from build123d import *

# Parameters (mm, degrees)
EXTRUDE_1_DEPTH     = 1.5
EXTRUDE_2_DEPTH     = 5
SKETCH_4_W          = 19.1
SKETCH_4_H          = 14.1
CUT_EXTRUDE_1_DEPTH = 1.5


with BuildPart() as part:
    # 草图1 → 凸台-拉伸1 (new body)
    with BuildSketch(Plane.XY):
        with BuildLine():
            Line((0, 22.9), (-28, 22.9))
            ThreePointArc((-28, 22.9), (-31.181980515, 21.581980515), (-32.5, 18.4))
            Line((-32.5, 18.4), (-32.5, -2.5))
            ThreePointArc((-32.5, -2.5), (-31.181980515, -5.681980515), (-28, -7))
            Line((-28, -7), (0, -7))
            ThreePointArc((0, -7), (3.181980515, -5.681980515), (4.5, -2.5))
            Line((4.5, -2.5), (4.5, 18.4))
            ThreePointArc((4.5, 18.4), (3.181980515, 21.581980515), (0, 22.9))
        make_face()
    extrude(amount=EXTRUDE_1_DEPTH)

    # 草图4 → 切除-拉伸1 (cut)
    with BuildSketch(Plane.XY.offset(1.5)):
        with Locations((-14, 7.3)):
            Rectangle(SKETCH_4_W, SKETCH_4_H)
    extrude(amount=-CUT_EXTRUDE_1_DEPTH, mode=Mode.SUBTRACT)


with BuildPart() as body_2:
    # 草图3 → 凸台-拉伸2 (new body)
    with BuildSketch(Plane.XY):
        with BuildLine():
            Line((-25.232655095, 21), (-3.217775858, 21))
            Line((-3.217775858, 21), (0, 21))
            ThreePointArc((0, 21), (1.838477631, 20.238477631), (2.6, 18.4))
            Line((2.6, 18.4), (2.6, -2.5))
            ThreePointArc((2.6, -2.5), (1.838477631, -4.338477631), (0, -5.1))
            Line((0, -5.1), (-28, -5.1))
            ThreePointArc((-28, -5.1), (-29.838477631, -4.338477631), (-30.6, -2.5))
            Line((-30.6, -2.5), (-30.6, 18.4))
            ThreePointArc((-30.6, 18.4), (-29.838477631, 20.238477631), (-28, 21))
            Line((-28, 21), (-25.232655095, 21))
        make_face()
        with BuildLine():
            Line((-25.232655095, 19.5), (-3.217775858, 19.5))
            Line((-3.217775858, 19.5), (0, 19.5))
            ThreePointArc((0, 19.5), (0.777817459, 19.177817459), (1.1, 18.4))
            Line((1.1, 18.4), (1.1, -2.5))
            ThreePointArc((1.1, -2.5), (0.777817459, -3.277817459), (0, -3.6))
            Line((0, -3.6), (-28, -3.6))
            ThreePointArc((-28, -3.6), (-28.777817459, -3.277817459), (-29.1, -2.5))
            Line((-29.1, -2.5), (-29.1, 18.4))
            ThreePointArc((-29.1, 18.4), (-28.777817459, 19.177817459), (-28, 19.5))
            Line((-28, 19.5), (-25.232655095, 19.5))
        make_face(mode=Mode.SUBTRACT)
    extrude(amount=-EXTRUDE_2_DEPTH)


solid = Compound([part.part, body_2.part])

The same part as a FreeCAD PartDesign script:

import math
import FreeCAD as App
import Part
import Sketcher

V = App.Vector

doc = App.newDocument("Part")
body = doc.addObject("PartDesign::Body", "Body")

# Sketch on XY plane
sketch1 = body.newObject("Sketcher::SketchObject", "Sketch")
sketch1.AttachmentSupport = (doc.getObject("XY_Plane"), [""])
sketch1.MapMode = "FlatFace"
sketch1.addGeometry(Part.LineSegment(V(0, 22.9, 0), V(-28, 22.9, 0)), False)
sketch1.addGeometry(Part.ArcOfCircle(Part.Circle(V(-28, 18.4, 0), V(0, 0, 1), 4.5), math.radians(90), math.radians(180)), False)
sketch1.addGeometry(Part.LineSegment(V(-32.5, 18.4, 0), V(-32.5, -2.5, 0)), False)
sketch1.addGeometry(Part.ArcOfCircle(Part.Circle(V(-28, -2.5, 0), V(0, 0, 1), 4.5), math.radians(-180), math.radians(-90)), False)
sketch1.addGeometry(Part.LineSegment(V(-28, -7, 0), V(0, -7, 0)), False)
sketch1.addGeometry(Part.ArcOfCircle(Part.Circle(V(0, -2.5, 0), V(0, 0, 1), 4.5), math.radians(-90), math.radians(0)), False)
sketch1.addGeometry(Part.LineSegment(V(4.5, -2.5, 0), V(4.5, 18.4, 0)), False)
sketch1.addGeometry(Part.ArcOfCircle(Part.Circle(V(0, 18.4, 0), V(0, 0, 1), 4.5), math.radians(0), math.radians(90)), False)
sketch1.addConstraint(Sketcher.Constraint("Tangent", 0, 2, 1, 1))
sketch1.addConstraint(Sketcher.Constraint("Tangent", 1, 2, 2, 1))
sketch1.addConstraint(Sketcher.Constraint("Tangent", 2, 2, 3, 1))
sketch1.addConstraint(Sketcher.Constraint("Tangent", 3, 2, 4, 1))
sketch1.addConstraint(Sketcher.Constraint("Tangent", 4, 2, 5, 1))
sketch1.addConstraint(Sketcher.Constraint("Tangent", 5, 2, 6, 1))
sketch1.addConstraint(Sketcher.Constraint("Tangent", 6, 2, 7, 1))
sketch1.addConstraint(Sketcher.Constraint("Tangent", 7, 2, 0, 1))
sketch1.addConstraint(Sketcher.Constraint("Horizontal", 0))
sketch1.addConstraint(Sketcher.Constraint("Vertical", 2))
sketch1.addConstraint(Sketcher.Constraint("Horizontal", 4))
sketch1.addConstraint(Sketcher.Constraint("Vertical", 6))
sketch1.addConstraint(Sketcher.Constraint("Equal", 1, 3))
sketch1.addConstraint(Sketcher.Constraint("Equal", 3, 5))
sketch1.addConstraint(Sketcher.Constraint("Equal", 5, 7))
sketch1.addConstraint(Sketcher.Constraint("PointOnObject", 5, 3, -2))
sketch1.addConstraint(Sketcher.Constraint("Radius", 1, 4.5))
sketch1.addConstraint(Sketcher.Constraint("DistanceX", 0, 2, 0, 1, 28.0))
sketch1.addConstraint(Sketcher.Constraint("DistanceY", 2, 2, 2, 1, 20.9))
sketch1.addConstraint(Sketcher.Constraint("DistanceY", 3, 2, -1, 1, 7.0))
pad1 = body.newObject("PartDesign::Pad", "Pad")
pad1.Profile = sketch1
pad1.Length = 1.5

# Sketch on XY plane
sketch2 = body.newObject("Sketcher::SketchObject", "Sketch001")
sketch2.AttachmentSupport = (doc.getObject("XY_Plane"), [""])
sketch2.MapMode = "FlatFace"
sketch2.AttachmentOffset = App.Placement(V(0, 0, 1.5), App.Rotation())
sketch2.addGeometry(Part.LineSegment(V(-24, 14, 0), V(-24, 0, 0)), False)
sketch2.addGeometry(Part.LineSegment(V(-24, 0, 0), V(-4, 0, 0)), False)
sketch2.addGeometry(Part.LineSegment(V(-4, 0, 0), V(-4, 14, 0)), False)
sketch2.addGeometry(Part.LineSegment(V(-4, 14, 0), V(-24, 14, 0)), False)
sketch2.addConstraint(Sketcher.Constraint("Coincident", 0, 2, 1, 1))
sketch2.addConstraint(Sketcher.Constraint("Coincident", 1, 2, 2, 1))
sketch2.addConstraint(Sketcher.Constraint("Coincident", 2, 2, 3, 1))
sketch2.addConstraint(Sketcher.Constraint("Coincident", 3, 2, 0, 1))
sketch2.addConstraint(Sketcher.Constraint("Vertical", 0))
sketch2.addConstraint(Sketcher.Constraint("Horizontal", 1))
sketch2.addConstraint(Sketcher.Constraint("Vertical", 2))
sketch2.addConstraint(Sketcher.Constraint("Horizontal", 3))
sketch2.addConstraint(Sketcher.Constraint("DistanceX", 1, 1, 1, 2, 19.1))
sketch2.addConstraint(Sketcher.Constraint("DistanceY", 0, 2, 0, 1, 14.1))
sketch2.addConstraint(Sketcher.Constraint("DistanceX", 0, 2, -1, 1, 23.55))
sketch2.addConstraint(Sketcher.Constraint("DistanceY", -1, 1, 0, 2, 0.25))
pocket1 = body.newObject("PartDesign::Pocket", "Pocket")
pocket1.Profile = sketch2
pocket1.Length = 1.5
body2 = doc.addObject("PartDesign::Body", "Body001")

# Sketch on XY plane
sketch3 = body2.newObject("Sketcher::SketchObject", "Sketch002")
sketch3.AttachmentSupport = (doc.getObject("XY_Plane001"), [""])
sketch3.MapMode = "FlatFace"
sketch3.addGeometry(Part.ArcOfCircle(Part.Circle(V(0, 18.4, 0), V(0, 0, 1), 2.6), math.radians(0), math.radians(90)), False)
sketch3.addGeometry(Part.LineSegment(V(0, 21, 0), V(-28, 21, 0)), False)
sketch3.addGeometry(Part.ArcOfCircle(Part.Circle(V(-28, 18.4, 0), V(0, 0, 1), 2.6), math.radians(90), math.radians(180)), False)
sketch3.addGeometry(Part.LineSegment(V(-30.6, 18.4, 0), V(-30.6, -2.5, 0)), False)
sketch3.addGeometry(Part.ArcOfCircle(Part.Circle(V(-28, -2.5, 0), V(0, 0, 1), 2.6), math.radians(180), math.radians(270)), False)
sketch3.addGeometry(Part.LineSegment(V(-28, -5.1, 0), V(0, -5.1, 0)), False)
sketch3.addGeometry(Part.ArcOfCircle(Part.Circle(V(0, -2.5, 0), V(0, 0, 1), 2.6), math.radians(-90), math.radians(0)), False)
sketch3.addGeometry(Part.LineSegment(V(2.6, -2.5, 0), V(2.6, 18.4, 0)), False)
sketch3.addGeometry(Part.ArcOfCircle(Part.Circle(V(0, 18.4, 0), V(0, 0, 1), 1.1), math.radians(0), math.radians(90)), False)
sketch3.addGeometry(Part.LineSegment(V(1.1, 18.4, 0), V(1.1, -2.5, 0)), False)
sketch3.addGeometry(Part.ArcOfCircle(Part.Circle(V(0, -2.5, 0), V(0, 0, 1), 1.1), math.radians(-90), math.radians(0)), False)
sketch3.addGeometry(Part.LineSegment(V(0, -3.6, 0), V(-28, -3.6, 0)), False)
sketch3.addGeometry(Part.ArcOfCircle(Part.Circle(V(-28, -2.5, 0), V(0, 0, 1), 1.1), math.radians(-180), math.radians(-90)), False)
sketch3.addGeometry(Part.LineSegment(V(-29.1, -2.5, 0), V(-29.1, 18.4, 0)), False)
sketch3.addGeometry(Part.ArcOfCircle(Part.Circle(V(-28, 18.4, 0), V(0, 0, 1), 1.1), math.radians(90), math.radians(180)), False)
sketch3.addGeometry(Part.LineSegment(V(-28, 19.5, 0), V(0, 19.5, 0)), False)
sketch3.addConstraint(Sketcher.Constraint("Tangent", 0, 2, 1, 1))
sketch3.addConstraint(Sketcher.Constraint("Tangent", 1, 2, 2, 1))
sketch3.addConstraint(Sketcher.Constraint("Tangent", 2, 2, 3, 1))
sketch3.addConstraint(Sketcher.Constraint("Tangent", 3, 2, 4, 1))
sketch3.addConstraint(Sketcher.Constraint("Tangent", 4, 2, 5, 1))
sketch3.addConstraint(Sketcher.Constraint("Tangent", 5, 2, 6, 1))
sketch3.addConstraint(Sketcher.Constraint("Tangent", 6, 2, 7, 1))
sketch3.addConstraint(Sketcher.Constraint("Tangent", 7, 2, 0, 1))
sketch3.addConstraint(Sketcher.Constraint("Tangent", 8, 1, 9, 1))
sketch3.addConstraint(Sketcher.Constraint("Tangent", 9, 2, 10, 2))
sketch3.addConstraint(Sketcher.Constraint("Tangent", 10, 1, 11, 1))
sketch3.addConstraint(Sketcher.Constraint("Tangent", 11, 2, 12, 2))
sketch3.addConstraint(Sketcher.Constraint("Tangent", 12, 1, 13, 1))
sketch3.addConstraint(Sketcher.Constraint("Tangent", 13, 2, 14, 2))
sketch3.addConstraint(Sketcher.Constraint("Tangent", 14, 1, 15, 1))
sketch3.addConstraint(Sketcher.Constraint("Tangent", 15, 2, 8, 2))
sketch3.addConstraint(Sketcher.Constraint("Horizontal", 1))
sketch3.addConstraint(Sketcher.Constraint("Vertical", 3))
sketch3.addConstraint(Sketcher.Constraint("Horizontal", 5))
sketch3.addConstraint(Sketcher.Constraint("Vertical", 7))
sketch3.addConstraint(Sketcher.Constraint("Vertical", 9))
sketch3.addConstraint(Sketcher.Constraint("Horizontal", 11))
sketch3.addConstraint(Sketcher.Constraint("Vertical", 13))
sketch3.addConstraint(Sketcher.Constraint("Horizontal", 15))
sketch3.addConstraint(Sketcher.Constraint("Coincident", 8, 3, 0, 3))
sketch3.addConstraint(Sketcher.Constraint("Coincident", 10, 3, 6, 3))
sketch3.addConstraint(Sketcher.Constraint("Coincident", 12, 3, 4, 3))
sketch3.addConstraint(Sketcher.Constraint("Equal", 0, 2))
sketch3.addConstraint(Sketcher.Constraint("Equal", 2, 4))
sketch3.addConstraint(Sketcher.Constraint("Equal", 4, 6))
sketch3.addConstraint(Sketcher.Constraint("Equal", 12, 14))
sketch3.addConstraint(Sketcher.Constraint("PointOnObject", 0, 3, -2))
sketch3.addConstraint(Sketcher.Constraint("Radius", 0, 2.6))
sketch3.addConstraint(Sketcher.Constraint("Radius", 8, 1.1))
sketch3.addConstraint(Sketcher.Constraint("DistanceX", 1, 2, 1, 1, 28.0))
sketch3.addConstraint(Sketcher.Constraint("DistanceY", 3, 2, 3, 1, 20.9))
sketch3.addConstraint(Sketcher.Constraint("DistanceY", -1, 1, 0, 2, 21.0))
pad2 = body2.newObject("PartDesign::Pad", "Pad001")
pad2.Profile = sketch3
pad2.Length = 5
pad2.Reversed = True

doc.recompute()
